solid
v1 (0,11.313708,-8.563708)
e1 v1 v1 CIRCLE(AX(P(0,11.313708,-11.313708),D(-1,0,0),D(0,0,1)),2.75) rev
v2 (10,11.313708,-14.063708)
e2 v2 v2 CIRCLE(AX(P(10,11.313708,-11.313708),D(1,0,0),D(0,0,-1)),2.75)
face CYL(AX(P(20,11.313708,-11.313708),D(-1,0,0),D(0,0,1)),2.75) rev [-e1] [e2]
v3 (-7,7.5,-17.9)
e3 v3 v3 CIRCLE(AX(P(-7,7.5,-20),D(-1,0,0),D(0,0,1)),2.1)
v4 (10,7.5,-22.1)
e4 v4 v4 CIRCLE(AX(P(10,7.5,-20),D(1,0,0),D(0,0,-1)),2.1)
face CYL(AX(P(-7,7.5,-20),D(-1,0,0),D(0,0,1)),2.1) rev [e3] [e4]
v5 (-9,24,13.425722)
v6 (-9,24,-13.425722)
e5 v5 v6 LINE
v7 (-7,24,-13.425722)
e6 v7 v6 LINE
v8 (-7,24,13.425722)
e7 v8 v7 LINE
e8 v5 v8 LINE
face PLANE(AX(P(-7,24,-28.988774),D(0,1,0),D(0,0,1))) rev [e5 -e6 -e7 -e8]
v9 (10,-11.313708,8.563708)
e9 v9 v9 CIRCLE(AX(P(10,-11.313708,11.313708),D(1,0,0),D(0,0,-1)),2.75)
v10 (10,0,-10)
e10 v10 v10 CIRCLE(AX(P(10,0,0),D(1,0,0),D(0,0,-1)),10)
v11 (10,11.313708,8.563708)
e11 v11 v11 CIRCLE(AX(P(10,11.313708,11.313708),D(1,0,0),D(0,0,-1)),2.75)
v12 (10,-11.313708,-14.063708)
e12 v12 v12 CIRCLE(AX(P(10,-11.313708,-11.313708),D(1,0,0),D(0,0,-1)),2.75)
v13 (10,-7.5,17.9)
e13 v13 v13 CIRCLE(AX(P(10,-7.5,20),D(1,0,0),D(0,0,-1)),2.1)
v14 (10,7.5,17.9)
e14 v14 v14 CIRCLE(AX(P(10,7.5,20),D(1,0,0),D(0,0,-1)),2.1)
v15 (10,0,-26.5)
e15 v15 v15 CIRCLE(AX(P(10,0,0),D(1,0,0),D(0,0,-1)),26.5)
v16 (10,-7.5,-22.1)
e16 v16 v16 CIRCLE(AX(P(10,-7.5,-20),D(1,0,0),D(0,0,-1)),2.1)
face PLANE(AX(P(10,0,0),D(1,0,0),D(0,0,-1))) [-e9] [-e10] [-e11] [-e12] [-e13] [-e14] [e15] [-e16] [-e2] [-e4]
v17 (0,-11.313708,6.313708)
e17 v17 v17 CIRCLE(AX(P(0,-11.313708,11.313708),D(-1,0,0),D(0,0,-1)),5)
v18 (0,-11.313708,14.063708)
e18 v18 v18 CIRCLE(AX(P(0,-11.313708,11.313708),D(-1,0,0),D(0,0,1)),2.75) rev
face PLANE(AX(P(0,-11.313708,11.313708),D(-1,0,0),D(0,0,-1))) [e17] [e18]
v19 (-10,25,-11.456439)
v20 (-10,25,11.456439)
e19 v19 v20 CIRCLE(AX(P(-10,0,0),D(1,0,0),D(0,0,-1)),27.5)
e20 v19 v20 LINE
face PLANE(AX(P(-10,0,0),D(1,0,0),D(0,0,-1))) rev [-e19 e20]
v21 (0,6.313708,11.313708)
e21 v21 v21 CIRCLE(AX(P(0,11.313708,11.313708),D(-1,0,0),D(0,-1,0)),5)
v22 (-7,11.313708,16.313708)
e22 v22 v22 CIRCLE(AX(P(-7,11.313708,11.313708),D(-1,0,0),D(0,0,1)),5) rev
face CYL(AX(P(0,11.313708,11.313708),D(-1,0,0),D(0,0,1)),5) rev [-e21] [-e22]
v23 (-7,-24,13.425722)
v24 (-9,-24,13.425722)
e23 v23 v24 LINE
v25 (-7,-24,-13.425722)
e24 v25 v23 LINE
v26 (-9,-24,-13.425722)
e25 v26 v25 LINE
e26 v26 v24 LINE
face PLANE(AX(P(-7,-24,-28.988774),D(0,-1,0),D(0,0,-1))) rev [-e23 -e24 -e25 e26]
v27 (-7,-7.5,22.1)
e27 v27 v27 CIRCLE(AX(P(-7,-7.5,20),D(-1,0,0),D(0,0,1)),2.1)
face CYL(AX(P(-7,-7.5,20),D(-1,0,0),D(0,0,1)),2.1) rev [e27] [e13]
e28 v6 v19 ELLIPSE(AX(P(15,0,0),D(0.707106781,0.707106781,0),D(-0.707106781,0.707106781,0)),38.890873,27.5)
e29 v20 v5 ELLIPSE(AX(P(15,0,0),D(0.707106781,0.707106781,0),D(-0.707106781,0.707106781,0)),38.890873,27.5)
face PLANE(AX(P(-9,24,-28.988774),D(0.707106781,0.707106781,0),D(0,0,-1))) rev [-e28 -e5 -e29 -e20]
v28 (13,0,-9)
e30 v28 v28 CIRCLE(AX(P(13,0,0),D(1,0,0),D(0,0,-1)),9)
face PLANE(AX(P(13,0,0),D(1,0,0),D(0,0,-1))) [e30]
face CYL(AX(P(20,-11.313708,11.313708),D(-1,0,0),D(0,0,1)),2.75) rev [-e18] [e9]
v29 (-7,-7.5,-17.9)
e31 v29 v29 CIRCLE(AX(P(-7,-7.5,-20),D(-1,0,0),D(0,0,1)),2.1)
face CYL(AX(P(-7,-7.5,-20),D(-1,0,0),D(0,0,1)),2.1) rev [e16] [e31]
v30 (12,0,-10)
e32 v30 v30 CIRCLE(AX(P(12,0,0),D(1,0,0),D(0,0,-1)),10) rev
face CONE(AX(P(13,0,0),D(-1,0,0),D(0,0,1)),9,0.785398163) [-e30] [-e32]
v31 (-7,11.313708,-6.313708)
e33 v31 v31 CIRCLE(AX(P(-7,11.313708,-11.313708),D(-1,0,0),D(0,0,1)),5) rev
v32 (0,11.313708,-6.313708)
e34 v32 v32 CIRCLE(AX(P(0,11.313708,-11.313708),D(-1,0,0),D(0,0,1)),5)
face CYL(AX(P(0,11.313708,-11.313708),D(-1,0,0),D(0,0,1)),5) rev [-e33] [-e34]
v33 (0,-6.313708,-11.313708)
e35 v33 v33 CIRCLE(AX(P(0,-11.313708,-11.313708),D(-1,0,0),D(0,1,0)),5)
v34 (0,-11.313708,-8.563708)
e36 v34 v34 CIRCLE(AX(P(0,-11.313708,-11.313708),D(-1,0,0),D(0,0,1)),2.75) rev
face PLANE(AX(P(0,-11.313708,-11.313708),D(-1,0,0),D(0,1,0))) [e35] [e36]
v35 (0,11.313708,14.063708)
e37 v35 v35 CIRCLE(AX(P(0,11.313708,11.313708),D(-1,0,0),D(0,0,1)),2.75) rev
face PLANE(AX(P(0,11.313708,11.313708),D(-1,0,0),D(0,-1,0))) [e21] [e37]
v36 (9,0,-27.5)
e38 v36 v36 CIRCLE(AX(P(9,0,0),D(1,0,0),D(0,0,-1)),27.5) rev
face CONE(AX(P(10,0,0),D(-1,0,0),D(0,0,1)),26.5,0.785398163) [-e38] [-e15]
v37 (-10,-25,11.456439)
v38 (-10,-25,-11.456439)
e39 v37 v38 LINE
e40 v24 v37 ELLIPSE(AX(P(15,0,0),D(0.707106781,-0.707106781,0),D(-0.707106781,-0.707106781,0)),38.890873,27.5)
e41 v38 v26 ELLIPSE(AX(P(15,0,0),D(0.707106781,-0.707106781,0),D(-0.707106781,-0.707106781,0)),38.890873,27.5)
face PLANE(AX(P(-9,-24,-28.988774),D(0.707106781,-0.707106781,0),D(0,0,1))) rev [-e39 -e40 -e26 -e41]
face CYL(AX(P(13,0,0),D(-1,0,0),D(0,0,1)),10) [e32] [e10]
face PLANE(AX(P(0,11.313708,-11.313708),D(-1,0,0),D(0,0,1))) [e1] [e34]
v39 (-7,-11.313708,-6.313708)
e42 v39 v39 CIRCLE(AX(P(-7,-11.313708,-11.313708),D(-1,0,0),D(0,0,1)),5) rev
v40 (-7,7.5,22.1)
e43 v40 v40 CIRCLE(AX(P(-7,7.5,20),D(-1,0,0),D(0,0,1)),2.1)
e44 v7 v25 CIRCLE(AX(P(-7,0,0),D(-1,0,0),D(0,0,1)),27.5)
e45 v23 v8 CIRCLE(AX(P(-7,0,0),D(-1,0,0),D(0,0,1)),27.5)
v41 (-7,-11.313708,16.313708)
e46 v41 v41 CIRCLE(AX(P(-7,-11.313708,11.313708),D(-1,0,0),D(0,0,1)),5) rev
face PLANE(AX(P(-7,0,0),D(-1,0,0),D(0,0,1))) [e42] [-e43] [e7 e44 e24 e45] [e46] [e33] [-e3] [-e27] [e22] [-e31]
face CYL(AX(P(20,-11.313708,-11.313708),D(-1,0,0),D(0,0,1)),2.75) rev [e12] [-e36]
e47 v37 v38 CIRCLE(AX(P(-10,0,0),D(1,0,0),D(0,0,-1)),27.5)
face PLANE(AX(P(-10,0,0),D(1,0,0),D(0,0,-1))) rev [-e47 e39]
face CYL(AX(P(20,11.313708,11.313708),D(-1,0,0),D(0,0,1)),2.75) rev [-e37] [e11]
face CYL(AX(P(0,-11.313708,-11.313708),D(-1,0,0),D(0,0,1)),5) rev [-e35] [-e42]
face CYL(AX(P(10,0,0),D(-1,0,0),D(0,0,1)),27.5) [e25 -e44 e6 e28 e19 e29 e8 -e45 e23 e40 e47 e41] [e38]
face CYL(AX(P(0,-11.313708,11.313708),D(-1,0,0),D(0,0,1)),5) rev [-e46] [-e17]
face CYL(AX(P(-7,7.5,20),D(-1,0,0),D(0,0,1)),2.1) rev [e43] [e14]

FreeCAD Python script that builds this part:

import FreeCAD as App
import Part
import Sketcher

V = App.Vector
Q = App.Units.Quantity


def edges_at(feature, points):
    """Names of the edges that pass closest to the given points."""
    edges = feature.Shape.Edges
    near = lambda p: min(range(len(edges)), key=lambda i: edges[i].distToShape(Part.Vertex(*p))[0])
    return sorted({f"Edge{near(p) + 1}" for p in points})


def add_polygon(sketch, points):
    """Adds a closed chain of lines whose ends are joined by coincident constraints."""
    first, n = sketch.GeometryCount, len(points)
    for a, b in zip(points, points[1:] + points[:1]):
        sketch.addGeometry(Part.LineSegment(App.Vector(*a, 0), App.Vector(*b, 0)), False)
    for i in range(n):
        sketch.addConstraint(Sketcher.Constraint("Coincident", first + i, 2, first + (i + 1) % n, 1))

doc = App.newDocument("Part")
body = doc.addObject("PartDesign::Body", "Body")

# Sketch on YZ plane
sketch1 = body.newObject("Sketcher::SketchObject", "Sketch")
sketch1.AttachmentSupport = (doc.getObject("YZ_Plane"), [""])
sketch1.MapMode = "FlatFace"
sketch1.addGeometry(Part.Circle(V(0, 0, 0), V(0, 0, 1), 28), False)
sketch1.addConstraint(Sketcher.Constraint("Coincident", 0, 3, -1, 1))
sketch1.addConstraint(Sketcher.Constraint("Diameter", 0, 55.0))
pad1 = body.newObject("PartDesign::Pad", "Pad")
pad1.Profile = sketch1
pad1.Length = 20
pad1.Midplane = True

# Sketch on YZ plane
sketch2 = body.newObject("Sketcher::SketchObject", "Sketch001")
sketch2.AttachmentSupport = (doc.getObject("YZ_Plane"), [""])
sketch2.MapMode = "FlatFace"
sketch2.AttachmentOffset = App.Placement(V(0, 0, 10), App.Rotation())
sketch2.addGeometry(Part.Circle(V(0, 0, 0), V(0, 0, 1), 10), False)
sketch2.addConstraint(Sketcher.Constraint("Coincident", 0, 3, -1, 1))
sketch2.addConstraint(Sketcher.Constraint("Diameter", 0, 20.0))
pad2 = body.newObject("PartDesign::Pad", "Pad001")
pad2.Profile = sketch2
pad2.Length = 3

# Sketch on YZ plane
sketch3 = body.newObject("Sketcher::SketchObject", "Sketch002")
sketch3.AttachmentSupport = (doc.getObject("YZ_Plane"), [""])
sketch3.MapMode = "FlatFace"
sketch3.AttachmentOffset = App.Placement(V(0, 0, -10), App.Rotation())
sketch3.addGeometry(Part.Circle(V(11.3, 11.3, 0), V(0, 0, 1), 2.8), False)
sketch3.addConstraint(Sketcher.Constraint("Diameter", 0, 5.5))
sketch3.addConstraint(Sketcher.Constraint("DistanceX", -1, 1, 0, 3, 11.313708))
sketch3.addConstraint(Sketcher.Constraint("DistanceY", -1, 1, 0, 3, 11.313708))
pocket1 = body.newObject("PartDesign::Pocket", "Pocket")
pocket1.Profile = sketch3
pocket1.Length = 30
pocket1.Reversed = True
doc.recompute()

polarpattern = body.newObject("PartDesign::PolarPattern", "PolarPattern")
polarpattern.Originals = [pocket1]
polarpattern.Axis = (doc.getObject("X_Axis"), [""])
polarpattern.Angle = 360
polarpattern.Occurrences = 4
body.Tip = polarpattern

# Sketch on YZ plane
sketch4 = body.newObject("Sketcher::SketchObject", "Sketch003")
sketch4.AttachmentSupport = (doc.getObject("YZ_Plane"), [""])
sketch4.MapMode = "FlatFace"
sketch4.AttachmentOffset = App.Placement(V(0, 0, -10), App.Rotation())
sketch4.addGeometry(Part.Circle(V(11, -11, 0), V(0, 0, 1), 5), False)
sketch4.addConstraint(Sketcher.Constraint("Diameter", 0, 10.0))
sketch4.addConstraint(Sketcher.Constraint("DistanceX", -1, 1, 0, 3, 11.313708))
sketch4.addConstraint(Sketcher.Constraint("DistanceY", 0, 3, -1, 1, 11.313708))
pocket2 = body.newObject("PartDesign::Pocket", "Pocket001")
pocket2.Profile = sketch4
pocket2.Length = 10
pocket2.Reversed = True
doc.recompute()

polarpattern2 = body.newObject("PartDesign::PolarPattern", "PolarPattern001")
polarpattern2.Originals = [pocket2]
polarpattern2.Axis = (doc.getObject("X_Axis"), [""])
polarpattern2.Angle = 360
polarpattern2.Occurrences = 4
body.Tip = polarpattern2

# Sketch on YZ plane
sketch5 = body.newObject("Sketcher::SketchObject", "Sketch004")
sketch5.AttachmentSupport = (doc.getObject("YZ_Plane"), [""])
sketch5.MapMode = "FlatFace"
sketch5.AttachmentOffset = App.Placement(V(0, 0, -10), App.Rotation())
add_polygon(sketch5, [(24, -29), (-24, -29), (-24, 37), (24, 37)])  # lines 0-3
sketch5.addConstraint(Sketcher.Constraint("Horizontal", 0))
sketch5.addConstraint(Sketcher.Constraint("Vertical", 1))
sketch5.addConstraint(Sketcher.Constraint("Horizontal", 2))
sketch5.addConstraint(Sketcher.Constraint("Vertical", 3))
sketch5.addConstraint(Sketcher.Constraint("DistanceX", 0, 2, 0, 1, 48.0))
sketch5.addConstraint(Sketcher.Constraint("DistanceX", 0, 2, -1, 1, 24.0))
sketch5.addConstraint(Sketcher.Constraint("DistanceY", 1, 1, 1, 2, 66.473755))
sketch5.addConstraint(Sketcher.Constraint("DistanceY", -1, 1, 1, 2, 37.484982))
pocket3 = body.newObject("PartDesign::Pocket", "Pocket002")
pocket3.Profile = sketch5
pocket3.Length = 3
pocket3.Reversed = True
doc.recompute()

chamfer = body.newObject("PartDesign::Chamfer", "Chamfer")
chamfer.Base = (pocket3, edges_at(pocket3, [(-10, 24, 0), (-10, -24, 0)]))
chamfer.Size = 1
doc.recompute()

chamfer2 = body.newObject("PartDesign::Chamfer", "Chamfer001")
chamfer2.Base = (chamfer, edges_at(chamfer, [(10, 0, 27.5), (13, 0, 10)]))
chamfer2.Size = 1

# Sketch on XZ plane
sketch6 = body.newObject("Sketcher::SketchObject", "Sketch005")
sketch6.AttachmentSupport = (doc.getObject("XZ_Plane"), [""])
sketch6.MapMode = "FlatFace"
sketch6.AttachmentOffset = App.Placement(V(0, 0, 7.5), App.Rotation())
add_polygon(sketch6, [(26.7, -20), (-7, -20), (-7, -17.9), (25.4, -17.9)])  # lines 0-3
sketch6.addGeometry(Part.LineSegment(V(-7, -20, 0), V(26.7, -20, 0)), True)  # axis
sketch6.addConstraint(Sketcher.Constraint("Horizontal", 0))
sketch6.addConstraint(Sketcher.Constraint("Vertical", 1))
sketch6.addConstraint(Sketcher.Constraint("Horizontal", 2))
sketch6.addConstraint(Sketcher.Constraint("Horizontal", 4))
sketch6.addConstraint(Sketcher.Constraint("Coincident", 4, 1, 0, 2))
sketch6.addConstraint(Sketcher.Constraint("Equal", 0, 4))
sketch6.addConstraint(Sketcher.Constraint("Angle", 3, Q("-59 deg")))
sketch6.addConstraint(Sketcher.Constraint("DistanceX", 2, 1, 2, 2, 32.4))
sketch6.addConstraint(Sketcher.Constraint("DistanceY", 1, 1, 1, 2, 2.1))
sketch6.addConstraint(Sketcher.Constraint("DistanceX", 0, 2, -1, 1, 7.0))
sketch6.addConstraint(Sketcher.Constraint("DistanceY", 0, 2, -1, 1, 20.0))
groove = body.newObject("PartDesign::Groove", "Groove")
groove.Profile = sketch6
groove.ReferenceAxis = (sketch6, ["Axis0"])
groove.Angle = 360
doc.recompute()

mirrored = body.newObject("PartDesign::Mirrored", "Mirrored")
mirrored.Originals = [groove]
mirrored.MirrorPlane = (doc.getObject("XZ_Plane"), [""])
body.Tip = mirrored
doc.recompute()

mirrored2 = body.newObject("PartDesign::Mirrored", "Mirrored001")
mirrored2.Originals = [groove]
mirrored2.MirrorPlane = (doc.getObject("XY_Plane"), [""])
body.Tip = mirrored2

# Sketch on XZ plane
sketch7 = body.newObject("Sketcher::SketchObject", "Sketch006")
sketch7.AttachmentSupport = (doc.getObject("XZ_Plane"), [""])
sketch7.MapMode = "FlatFace"
sketch7.AttachmentOffset = App.Placement(V(0, 0, -7.5), App.Rotation())
add_polygon(sketch7, [(26.7, 20), (-7, 20), (-7, 17.9), (25.4, 17.9)])  # lines 0-3
sketch7.addGeometry(Part.LineSegment(V(-7, 20, 0), V(26.7, 20, 0)), True)  # axis
sketch7.addConstraint(Sketcher.Constraint("Horizontal", 0))
sketch7.addConstraint(Sketcher.Constraint("Vertical", 1))
sketch7.addConstraint(Sketcher.Constraint("Horizontal", 2))
sketch7.addConstraint(Sketcher.Constraint("Horizontal", 4))
sketch7.addConstraint(Sketcher.Constraint("Coincident", 4, 1, 0, 2))
sketch7.addConstraint(Sketcher.Constraint("Equal", 0, 4))
sketch7.addConstraint(Sketcher.Constraint("Angle", 3, Q("59 deg")))
sketch7.addConstraint(Sketcher.Constraint("DistanceX", 2, 1, 2, 2, 32.4))
sketch7.addConstraint(Sketcher.Constraint("DistanceY", 1, 2, 1, 1, 2.1))
sketch7.addConstraint(Sketcher.Constraint("DistanceX", 0, 2, -1, 1, 7.0))
sketch7.addConstraint(Sketcher.Constraint("DistanceY", -1, 1, 0, 2, 20.0))
groove2 = body.newObject("PartDesign::Groove", "Groove001")
groove2.Profile = sketch7
groove2.ReferenceAxis = (sketch7, ["Axis0"])
groove2.Angle = 360

doc.recompute()
